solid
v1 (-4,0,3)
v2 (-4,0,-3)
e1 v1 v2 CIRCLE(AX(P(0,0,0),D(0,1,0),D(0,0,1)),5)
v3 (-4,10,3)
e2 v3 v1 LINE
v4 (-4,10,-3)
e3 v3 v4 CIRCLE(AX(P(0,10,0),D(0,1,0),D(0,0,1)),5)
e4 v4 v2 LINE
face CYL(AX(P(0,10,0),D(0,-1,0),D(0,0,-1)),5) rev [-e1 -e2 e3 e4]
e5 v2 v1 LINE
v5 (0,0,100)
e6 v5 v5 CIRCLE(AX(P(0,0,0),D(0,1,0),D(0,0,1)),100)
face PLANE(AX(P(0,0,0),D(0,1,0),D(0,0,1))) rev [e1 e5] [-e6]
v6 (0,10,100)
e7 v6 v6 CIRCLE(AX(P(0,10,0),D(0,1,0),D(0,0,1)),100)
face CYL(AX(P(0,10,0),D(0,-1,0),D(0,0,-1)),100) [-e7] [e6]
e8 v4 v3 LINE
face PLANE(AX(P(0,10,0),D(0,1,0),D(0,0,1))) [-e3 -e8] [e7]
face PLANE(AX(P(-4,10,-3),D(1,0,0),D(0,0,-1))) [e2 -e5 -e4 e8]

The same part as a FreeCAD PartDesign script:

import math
import FreeCAD as App
import Part
import Sketcher
from FreeCAD import Vector

doc = App.newDocument("Part")
body = doc.addObject("PartDesign::Body", "Body")

# Sketch on XZ plane
sketch1 = body.newObject("Sketcher::SketchObject", "Sketch")
sketch1.AttachmentSupport = (doc.getObject("XZ_Plane"), [""])
sketch1.MapMode = "FlatFace"
sketch1.addGeometry(Part.Circle(Vector(0, 0, 0), Vector(0, 0, 1), 100), False)
sketch1.addGeometry(Part.LineSegment(Vector(-4, 3, 0), Vector(-4, -3, 0)), False)
sketch1.addGeometry(Part.ArcOfCircle(Part.Circle(Vector(0, 0, 0), Vector(0, 0, 1), 5), math.radians(-143), math.radians(143)), False)
sketch1.addConstraint(Sketcher.Constraint("Coincident", 1, 1, 2, 2))
sketch1.addConstraint(Sketcher.Constraint("Coincident", 2, 1, 1, 2))
sketch1.addConstraint(Sketcher.Constraint("Vertical", 1))
sketch1.addConstraint(Sketcher.Constraint("Coincident", 0, 3, -1, 1))
sketch1.addConstraint(Sketcher.Constraint("Coincident", 2, 3, -1, 1))
sketch1.addConstraint(Sketcher.Constraint("Diameter", 0, 200.0))
sketch1.addConstraint(Sketcher.Constraint("Radius", 2, 5.0))
sketch1.addConstraint(Sketcher.Constraint("DistanceY", 1, 2, 1, 1, 6.0))
pad1 = body.newObject("PartDesign::Pad", "Pad")
pad1.Profile = sketch1
pad1.Length = 10
pad1.Reversed = True

doc.recompute()
